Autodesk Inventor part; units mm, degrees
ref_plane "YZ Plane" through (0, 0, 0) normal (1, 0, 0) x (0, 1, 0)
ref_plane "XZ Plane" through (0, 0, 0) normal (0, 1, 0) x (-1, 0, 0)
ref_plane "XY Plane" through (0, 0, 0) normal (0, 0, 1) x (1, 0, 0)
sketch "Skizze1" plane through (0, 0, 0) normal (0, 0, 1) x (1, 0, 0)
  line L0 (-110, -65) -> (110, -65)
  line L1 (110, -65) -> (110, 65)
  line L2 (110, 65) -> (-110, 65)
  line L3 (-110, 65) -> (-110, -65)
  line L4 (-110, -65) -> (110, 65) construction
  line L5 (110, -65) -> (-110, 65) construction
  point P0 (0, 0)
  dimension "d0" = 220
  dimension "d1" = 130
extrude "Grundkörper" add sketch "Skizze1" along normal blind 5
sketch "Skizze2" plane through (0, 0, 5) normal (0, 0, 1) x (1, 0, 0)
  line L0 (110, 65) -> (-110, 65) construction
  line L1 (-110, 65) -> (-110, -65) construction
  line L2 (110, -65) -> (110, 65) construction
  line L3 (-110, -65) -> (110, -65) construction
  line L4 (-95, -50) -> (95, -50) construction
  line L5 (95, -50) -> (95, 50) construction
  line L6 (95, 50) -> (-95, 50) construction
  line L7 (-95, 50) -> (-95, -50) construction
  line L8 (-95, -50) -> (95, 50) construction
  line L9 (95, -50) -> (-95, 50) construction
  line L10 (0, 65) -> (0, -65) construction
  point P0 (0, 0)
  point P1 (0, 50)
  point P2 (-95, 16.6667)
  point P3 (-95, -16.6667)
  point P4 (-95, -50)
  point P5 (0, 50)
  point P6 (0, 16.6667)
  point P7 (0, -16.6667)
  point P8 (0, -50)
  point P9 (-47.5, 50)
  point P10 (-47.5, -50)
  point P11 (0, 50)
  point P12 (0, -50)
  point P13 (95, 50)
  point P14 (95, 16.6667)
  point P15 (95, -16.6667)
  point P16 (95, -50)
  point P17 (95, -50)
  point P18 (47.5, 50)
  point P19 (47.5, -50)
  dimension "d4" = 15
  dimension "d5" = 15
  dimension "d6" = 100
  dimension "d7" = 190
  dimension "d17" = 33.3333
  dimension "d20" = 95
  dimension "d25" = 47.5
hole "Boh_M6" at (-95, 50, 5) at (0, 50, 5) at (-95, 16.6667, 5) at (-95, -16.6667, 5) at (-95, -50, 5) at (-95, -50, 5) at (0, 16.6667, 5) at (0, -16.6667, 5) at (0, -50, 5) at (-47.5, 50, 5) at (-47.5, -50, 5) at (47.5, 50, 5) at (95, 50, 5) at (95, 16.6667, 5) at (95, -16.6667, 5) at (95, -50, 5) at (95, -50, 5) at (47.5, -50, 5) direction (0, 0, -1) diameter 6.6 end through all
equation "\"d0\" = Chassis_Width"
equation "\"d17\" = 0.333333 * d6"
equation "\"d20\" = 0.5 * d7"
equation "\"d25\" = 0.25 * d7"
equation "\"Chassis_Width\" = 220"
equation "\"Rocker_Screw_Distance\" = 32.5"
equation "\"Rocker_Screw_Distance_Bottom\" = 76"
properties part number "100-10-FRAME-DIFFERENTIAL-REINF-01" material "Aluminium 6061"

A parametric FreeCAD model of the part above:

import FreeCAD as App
import Part
import Sketcher
Q = App.Units.Quantity

doc = App.newDocument("Part")
body = doc.addObject("PartDesign::Body", "Body")

# Sketch on XY plane
sketch1 = body.newObject("Sketcher::SketchObject", "Sketch")
sketch1.AttachmentSupport = (doc.getObject("XY_Plane"), [""])
sketch1.MapMode = "FlatFace"
sketch1.addGeometry([
    Part.LineSegment(App.Vector(-110, 65, 0), App.Vector(-110, -65, 0)),
    Part.LineSegment(App.Vector(-110, -65, 0), App.Vector(110, -65, 0)),
    Part.LineSegment(App.Vector(110, -65, 0), App.Vector(110, 65, 0)),
    Part.LineSegment(App.Vector(110, 65, 0), App.Vector(-110, 65, 0)),
], False)
sketch1.addConstraint([
    Sketcher.Constraint("Coincident", 0, 2, 1, 1),
    Sketcher.Constraint("Coincident", 1, 2, 2, 1),
    Sketcher.Constraint("Coincident", 2, 2, 3, 1),
    Sketcher.Constraint("Coincident", 3, 2, 0, 1),
    Sketcher.Constraint("Vertical", 0),
    Sketcher.Constraint("Horizontal", 1),
    Sketcher.Constraint("Vertical", 2),
    Sketcher.Constraint("Horizontal", 3),
    Sketcher.Constraint("Symmetric", 0, 2, 2, 2, -1, 1),
    Sketcher.Constraint("DistanceX", 1, 1, 1, 2, Q("220 mm")),
    Sketcher.Constraint("DistanceY", 0, 2, 0, 1, Q("130 mm")),
])
pad1 = body.newObject("PartDesign::Pad", "Pad")
pad1.Profile = sketch1
pad1.Length = 5

# Sketch on XY plane
sketch2 = body.newObject("Sketcher::SketchObject", "Sketch001")
sketch2.AttachmentSupport = (doc.getObject("XY_Plane"), [""])
sketch2.MapMode = "FlatFace"
sketch2.AttachmentOffset = App.Placement(App.Vector(0, 0, 5), App.Rotation())
sketch2.addGeometry([
    Part.Circle(App.Vector(-95, 50, 0), App.Vector(0, 0, 1), 3.3),  # 0
    Part.Circle(App.Vector(0, 50, 0), App.Vector(0, 0, 1), 3.3),  # 1
    Part.Circle(App.Vector(-95, 16.7, 0), App.Vector(0, 0, 1), 3.3),  # 2
    Part.Circle(App.Vector(-95, -16.7, 0), App.Vector(0, 0, 1), 3.3),  # 3
    Part.Circle(App.Vector(-95, -50, 0), App.Vector(0, 0, 1), 3.3),  # 4
    Part.Circle(App.Vector(-95, -50, 0), App.Vector(0, 0, 1), 3.3),  # 5
    Part.Circle(App.Vector(0, 16.7, 0), App.Vector(0, 0, 1), 3.3),  # 6
    Part.Circle(App.Vector(0, -16.7, 0), App.Vector(0, 0, 1), 3.3),  # 7
    Part.Circle(App.Vector(0, -50, 0), App.Vector(0, 0, 1), 3.3),  # 8
    Part.Circle(App.Vector(-47.5, 50, 0), App.Vector(0, 0, 1), 3.3),  # 9
    Part.Circle(App.Vector(-47.5, -50, 0), App.Vector(0, 0, 1), 3.3),  # 10
    Part.Circle(App.Vector(47.5, 50, 0), App.Vector(0, 0, 1), 3.3),  # 11
    Part.Circle(App.Vector(95, 50, 0), App.Vector(0, 0, 1), 3.3),  # 12
    Part.Circle(App.Vector(95, 16.7, 0), App.Vector(0, 0, 1), 3.3),  # 13
    Part.Circle(App.Vector(95, -16.7, 0), App.Vector(0, 0, 1), 3.3),  # 14
    Part.Circle(App.Vector(95, -50, 0), App.Vector(0, 0, 1), 3.3),  # 15
    Part.Circle(App.Vector(95, -50, 0), App.Vector(0, 0, 1), 3.3),  # 16
    Part.Circle(App.Vector(47.5, -50, 0), App.Vector(0, 0, 1), 3.3),  # 17
], False)
sketch2.addConstraint([
    Sketcher.Constraint("Coincident", 5, 3, 4, 3),
    Sketcher.Constraint("Coincident", 16, 3, 15, 3),
    Sketcher.Constraint("Equal", 0, 1),
    Sketcher.Constraint("Equal", 1, 2),
    Sketcher.Constraint("Equal", 2, 3),
    Sketcher.Constraint("Equal", 3, 4),
    Sketcher.Constraint("Equal", 4, 5),
    Sketcher.Constraint("Equal", 5, 6),
    Sketcher.Constraint("Equal", 6, 7),
    Sketcher.Constraint("Equal", 7, 8),
    Sketcher.Constraint("Equal", 8, 9),
    Sketcher.Constraint("Equal", 9, 10),
    Sketcher.Constraint("Equal", 10, 11),
    Sketcher.Constraint("Equal", 11, 12),
    Sketcher.Constraint("Equal", 12, 13),
    Sketcher.Constraint("Equal", 13, 14),
    Sketcher.Constraint("Equal", 14, 15),
    Sketcher.Constraint("Equal", 15, 16),
    Sketcher.Constraint("Equal", 16, 17),
    Sketcher.Constraint("Symmetric", 6, 3, 7, 3, -1, 1),
    Sketcher.Constraint("Symmetric", 1, 3, 8, 3, -1, 1),
    Sketcher.Constraint("Symmetric", 10, 3, 11, 3, -1, 1),
    Sketcher.Constraint("Symmetric", 4, 3, 12, 3, -1, 1),
    Sketcher.Constraint("Symmetric", 3, 3, 13, 3, -1, 1),
    Sketcher.Constraint("Symmetric", 2, 3, 14, 3, -1, 1),
    Sketcher.Constraint("Symmetric", 0, 3, 15, 3, -1, 1),
    Sketcher.Constraint("Symmetric", 9, 3, 17, 3, -1, 1),
    Sketcher.Constraint("Symmetric", 9, 3, 11, 3, -2),
    Sketcher.Constraint("Symmetric", 0, 3, 12, 3, -2),
    Sketcher.Constraint("Symmetric", 2, 3, 13, 3, -2),
    Sketcher.Constraint("PointOnObject", 1, 3, -2),
    Sketcher.Constraint("PointOnObject", 6, 3, -2),
    Sketcher.Constraint("Horizontal", 0, 3, 1, 3),
    Sketcher.Constraint("Horizontal", 2, 3, 6, 3),
    Sketcher.Constraint("Horizontal", 1, 3, 9, 3),
    Sketcher.Constraint("Vertical", 0, 3, 2, 3),
    Sketcher.Constraint("Diameter", 0, Q("6.6 mm")),
    Sketcher.Constraint("DistanceX", 0, 3, -1, 1, Q("95 mm")),
    Sketcher.Constraint("DistanceY", -1, 1, 0, 3, Q("50 mm")),
    Sketcher.Constraint("DistanceX", 9, 3, 11, 3, Q("95 mm")),
    Sketcher.Constraint("DistanceY", -1, 1, 2, 3, Q("16.6667 mm")),
])
doc.recompute()
hole = body.newObject("PartDesign::Hole", "Hole")
hole.Profile = sketch2
hole.ThreadType = "None"
hole.Diameter = 6.6
hole.DepthType = "ThroughAll"

doc.recompute()
